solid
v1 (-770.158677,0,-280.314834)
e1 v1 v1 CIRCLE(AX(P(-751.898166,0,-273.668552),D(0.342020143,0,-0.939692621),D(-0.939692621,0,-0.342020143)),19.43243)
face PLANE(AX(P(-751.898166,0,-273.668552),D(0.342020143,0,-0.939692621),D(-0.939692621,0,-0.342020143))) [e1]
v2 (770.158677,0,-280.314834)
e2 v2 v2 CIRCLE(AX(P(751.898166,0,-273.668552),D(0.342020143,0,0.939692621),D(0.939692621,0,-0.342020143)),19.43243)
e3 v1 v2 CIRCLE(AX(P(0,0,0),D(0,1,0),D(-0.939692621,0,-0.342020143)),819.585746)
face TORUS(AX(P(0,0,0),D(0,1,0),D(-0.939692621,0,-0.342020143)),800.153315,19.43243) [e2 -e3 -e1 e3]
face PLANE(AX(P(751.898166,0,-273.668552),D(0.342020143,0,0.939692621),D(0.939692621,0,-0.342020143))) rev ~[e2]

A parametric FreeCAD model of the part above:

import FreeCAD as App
import Part
import Sketcher
from FreeCAD import Vector
Q = App.Units.Quantity

doc = App.newDocument("Part")
body = doc.addObject("PartDesign::Body", "Body")

sketch1 = body.newObject("Sketcher::SketchObject", "Sketch")
sketch1.Placement = App.Placement(Vector(0, 0, 0), App.Rotation(Vector(-0.939692621, 0, -0.342020143), Vector(0, 1, 0), Vector(0.342020143, 0, -0.939692621), "ZXY"))
sketch1.addGeometry(Part.Circle(Vector(800.153315, 0, 0), Vector(0, 0, 1), 19.43243), False)
sketch1.addConstraint([
    Sketcher.Constraint("PointOnObject", 0, 3, -1),
    Sketcher.Constraint("Diameter", 0, Q("38.864861 mm")),
    Sketcher.Constraint("DistanceX", -1, 1, 0, 3, Q("800.153315 mm")),
])
revolution = body.newObject("PartDesign::Revolution", "Revolution")
revolution.Profile = sketch1
revolution.ReferenceAxis = (sketch1, ["V_Axis"])
revolution.Angle = 220

doc.recompute()
